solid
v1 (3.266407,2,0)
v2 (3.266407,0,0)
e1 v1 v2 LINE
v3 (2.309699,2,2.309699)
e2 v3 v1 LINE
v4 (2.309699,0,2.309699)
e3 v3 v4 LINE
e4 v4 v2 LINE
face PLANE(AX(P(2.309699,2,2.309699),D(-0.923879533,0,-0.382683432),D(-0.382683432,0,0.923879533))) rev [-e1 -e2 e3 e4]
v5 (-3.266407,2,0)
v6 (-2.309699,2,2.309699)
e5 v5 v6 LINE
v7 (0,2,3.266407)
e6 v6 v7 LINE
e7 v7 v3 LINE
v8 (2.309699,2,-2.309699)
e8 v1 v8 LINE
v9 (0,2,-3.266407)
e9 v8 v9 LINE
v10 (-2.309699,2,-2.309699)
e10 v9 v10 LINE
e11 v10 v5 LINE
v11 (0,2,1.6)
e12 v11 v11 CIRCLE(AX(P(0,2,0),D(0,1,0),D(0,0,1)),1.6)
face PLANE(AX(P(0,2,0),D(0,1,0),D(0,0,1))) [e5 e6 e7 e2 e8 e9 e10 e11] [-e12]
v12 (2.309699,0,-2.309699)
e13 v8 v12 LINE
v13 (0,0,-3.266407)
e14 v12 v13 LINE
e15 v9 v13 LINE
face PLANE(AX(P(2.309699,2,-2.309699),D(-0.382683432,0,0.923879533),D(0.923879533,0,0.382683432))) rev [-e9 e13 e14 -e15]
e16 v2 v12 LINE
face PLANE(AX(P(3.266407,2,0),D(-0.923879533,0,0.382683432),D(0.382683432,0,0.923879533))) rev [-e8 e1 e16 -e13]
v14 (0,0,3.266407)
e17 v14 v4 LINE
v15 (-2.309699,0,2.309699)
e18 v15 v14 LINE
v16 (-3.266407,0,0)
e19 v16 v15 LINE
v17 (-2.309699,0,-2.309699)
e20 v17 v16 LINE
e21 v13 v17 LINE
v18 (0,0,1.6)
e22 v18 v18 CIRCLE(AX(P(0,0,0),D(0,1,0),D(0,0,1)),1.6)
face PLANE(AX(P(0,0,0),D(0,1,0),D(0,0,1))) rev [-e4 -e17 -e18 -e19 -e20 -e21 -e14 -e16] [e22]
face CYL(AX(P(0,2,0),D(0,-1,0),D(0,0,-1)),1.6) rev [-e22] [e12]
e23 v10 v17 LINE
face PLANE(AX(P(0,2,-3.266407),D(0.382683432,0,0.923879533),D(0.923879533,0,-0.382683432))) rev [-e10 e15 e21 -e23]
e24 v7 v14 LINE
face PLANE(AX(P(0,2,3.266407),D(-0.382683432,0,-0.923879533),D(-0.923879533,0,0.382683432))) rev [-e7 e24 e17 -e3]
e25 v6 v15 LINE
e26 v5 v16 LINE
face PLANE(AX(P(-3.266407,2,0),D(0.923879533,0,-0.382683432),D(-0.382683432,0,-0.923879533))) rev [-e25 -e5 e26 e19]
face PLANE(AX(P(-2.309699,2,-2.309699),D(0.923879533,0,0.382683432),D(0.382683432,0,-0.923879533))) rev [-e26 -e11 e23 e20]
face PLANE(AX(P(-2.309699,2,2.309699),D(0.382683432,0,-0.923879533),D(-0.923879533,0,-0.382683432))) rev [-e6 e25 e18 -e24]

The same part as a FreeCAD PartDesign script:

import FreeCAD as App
import Part
import Sketcher

V = App.Vector
Q = App.Units.Quantity

doc = App.newDocument("Part")
body = doc.addObject("PartDesign::Body", "Body")

sketch1 = body.newObject("Sketcher::SketchObject", "Sketch")
sketch1.AttachmentSupport = (doc.getObject("XZ_Plane"), [""])
sketch1.MapMode = "FlatFace"
sketch1.addGeometry([
    Part.LineSegment(V(3.266407, 0, 0), V(2.309699, -2.309699, 0)),
    Part.LineSegment(V(2.309699, -2.309699, 0), V(0, -3.266407, 0)),
    Part.LineSegment(V(0, -3.266407, 0), V(-2.309699, -2.309699, 0)),
    Part.LineSegment(V(-2.309699, -2.309699, 0), V(-3.266407, 0, 0)),
    Part.LineSegment(V(-3.266407, 0, 0), V(-2.309699, 2.309699, 0)),
    Part.LineSegment(V(-2.309699, 2.309699, 0), V(0, 3.266407, 0)),
    Part.LineSegment(V(0, 3.266407, 0), V(2.309699, 2.309699, 0)),
    Part.LineSegment(V(2.309699, 2.309699, 0), V(3.266407, 0, 0)),
    Part.Circle(V(0, 0, 0), V(0, 0, 1), 1.6),
], False)
sketch1.addConstraint([
    Sketcher.Constraint("Coincident", 0, 2, 1, 1),
    Sketcher.Constraint("Coincident", 1, 2, 2, 1),
    Sketcher.Constraint("Coincident", 2, 2, 3, 1),
    Sketcher.Constraint("Coincident", 3, 2, 4, 1),
    Sketcher.Constraint("Coincident", 4, 2, 5, 1),
    Sketcher.Constraint("Coincident", 5, 2, 6, 1),
    Sketcher.Constraint("Coincident", 6, 2, 7, 1),
    Sketcher.Constraint("Coincident", 7, 2, 0, 1),
    Sketcher.Constraint("Coincident", 8, 3, -1, 1),
    Sketcher.Constraint("Symmetric", 0, 2, 4, 2, -1, 1),
    Sketcher.Constraint("Symmetric", 1, 2, 5, 2, -1, 1),
    Sketcher.Constraint("Symmetric", 2, 2, 6, 2, -1, 1),
    Sketcher.Constraint("Symmetric", 3, 2, 7, 2, -1, 1),
    Sketcher.Constraint("Symmetric", 0, 2, 2, 2, -2),
    Sketcher.Constraint("PointOnObject", 1, 2, -2),
    Sketcher.Constraint("PointOnObject", 3, 2, -1),
    Sketcher.Constraint("Perpendicular", 0, 2),
    Sketcher.Constraint("Equal", 0, 1),
    Sketcher.Constraint("Diameter", 8, 3.2),
    Sketcher.Constraint("Angle", 0, Q("-112.5 deg")),
    Sketcher.Constraint("Distance", 0, 2.5),
])
pad1 = body.newObject("PartDesign::Pad", "Pad")
pad1.Profile = sketch1
pad1.Length = 2
pad1.Reversed = True

doc.recompute()
